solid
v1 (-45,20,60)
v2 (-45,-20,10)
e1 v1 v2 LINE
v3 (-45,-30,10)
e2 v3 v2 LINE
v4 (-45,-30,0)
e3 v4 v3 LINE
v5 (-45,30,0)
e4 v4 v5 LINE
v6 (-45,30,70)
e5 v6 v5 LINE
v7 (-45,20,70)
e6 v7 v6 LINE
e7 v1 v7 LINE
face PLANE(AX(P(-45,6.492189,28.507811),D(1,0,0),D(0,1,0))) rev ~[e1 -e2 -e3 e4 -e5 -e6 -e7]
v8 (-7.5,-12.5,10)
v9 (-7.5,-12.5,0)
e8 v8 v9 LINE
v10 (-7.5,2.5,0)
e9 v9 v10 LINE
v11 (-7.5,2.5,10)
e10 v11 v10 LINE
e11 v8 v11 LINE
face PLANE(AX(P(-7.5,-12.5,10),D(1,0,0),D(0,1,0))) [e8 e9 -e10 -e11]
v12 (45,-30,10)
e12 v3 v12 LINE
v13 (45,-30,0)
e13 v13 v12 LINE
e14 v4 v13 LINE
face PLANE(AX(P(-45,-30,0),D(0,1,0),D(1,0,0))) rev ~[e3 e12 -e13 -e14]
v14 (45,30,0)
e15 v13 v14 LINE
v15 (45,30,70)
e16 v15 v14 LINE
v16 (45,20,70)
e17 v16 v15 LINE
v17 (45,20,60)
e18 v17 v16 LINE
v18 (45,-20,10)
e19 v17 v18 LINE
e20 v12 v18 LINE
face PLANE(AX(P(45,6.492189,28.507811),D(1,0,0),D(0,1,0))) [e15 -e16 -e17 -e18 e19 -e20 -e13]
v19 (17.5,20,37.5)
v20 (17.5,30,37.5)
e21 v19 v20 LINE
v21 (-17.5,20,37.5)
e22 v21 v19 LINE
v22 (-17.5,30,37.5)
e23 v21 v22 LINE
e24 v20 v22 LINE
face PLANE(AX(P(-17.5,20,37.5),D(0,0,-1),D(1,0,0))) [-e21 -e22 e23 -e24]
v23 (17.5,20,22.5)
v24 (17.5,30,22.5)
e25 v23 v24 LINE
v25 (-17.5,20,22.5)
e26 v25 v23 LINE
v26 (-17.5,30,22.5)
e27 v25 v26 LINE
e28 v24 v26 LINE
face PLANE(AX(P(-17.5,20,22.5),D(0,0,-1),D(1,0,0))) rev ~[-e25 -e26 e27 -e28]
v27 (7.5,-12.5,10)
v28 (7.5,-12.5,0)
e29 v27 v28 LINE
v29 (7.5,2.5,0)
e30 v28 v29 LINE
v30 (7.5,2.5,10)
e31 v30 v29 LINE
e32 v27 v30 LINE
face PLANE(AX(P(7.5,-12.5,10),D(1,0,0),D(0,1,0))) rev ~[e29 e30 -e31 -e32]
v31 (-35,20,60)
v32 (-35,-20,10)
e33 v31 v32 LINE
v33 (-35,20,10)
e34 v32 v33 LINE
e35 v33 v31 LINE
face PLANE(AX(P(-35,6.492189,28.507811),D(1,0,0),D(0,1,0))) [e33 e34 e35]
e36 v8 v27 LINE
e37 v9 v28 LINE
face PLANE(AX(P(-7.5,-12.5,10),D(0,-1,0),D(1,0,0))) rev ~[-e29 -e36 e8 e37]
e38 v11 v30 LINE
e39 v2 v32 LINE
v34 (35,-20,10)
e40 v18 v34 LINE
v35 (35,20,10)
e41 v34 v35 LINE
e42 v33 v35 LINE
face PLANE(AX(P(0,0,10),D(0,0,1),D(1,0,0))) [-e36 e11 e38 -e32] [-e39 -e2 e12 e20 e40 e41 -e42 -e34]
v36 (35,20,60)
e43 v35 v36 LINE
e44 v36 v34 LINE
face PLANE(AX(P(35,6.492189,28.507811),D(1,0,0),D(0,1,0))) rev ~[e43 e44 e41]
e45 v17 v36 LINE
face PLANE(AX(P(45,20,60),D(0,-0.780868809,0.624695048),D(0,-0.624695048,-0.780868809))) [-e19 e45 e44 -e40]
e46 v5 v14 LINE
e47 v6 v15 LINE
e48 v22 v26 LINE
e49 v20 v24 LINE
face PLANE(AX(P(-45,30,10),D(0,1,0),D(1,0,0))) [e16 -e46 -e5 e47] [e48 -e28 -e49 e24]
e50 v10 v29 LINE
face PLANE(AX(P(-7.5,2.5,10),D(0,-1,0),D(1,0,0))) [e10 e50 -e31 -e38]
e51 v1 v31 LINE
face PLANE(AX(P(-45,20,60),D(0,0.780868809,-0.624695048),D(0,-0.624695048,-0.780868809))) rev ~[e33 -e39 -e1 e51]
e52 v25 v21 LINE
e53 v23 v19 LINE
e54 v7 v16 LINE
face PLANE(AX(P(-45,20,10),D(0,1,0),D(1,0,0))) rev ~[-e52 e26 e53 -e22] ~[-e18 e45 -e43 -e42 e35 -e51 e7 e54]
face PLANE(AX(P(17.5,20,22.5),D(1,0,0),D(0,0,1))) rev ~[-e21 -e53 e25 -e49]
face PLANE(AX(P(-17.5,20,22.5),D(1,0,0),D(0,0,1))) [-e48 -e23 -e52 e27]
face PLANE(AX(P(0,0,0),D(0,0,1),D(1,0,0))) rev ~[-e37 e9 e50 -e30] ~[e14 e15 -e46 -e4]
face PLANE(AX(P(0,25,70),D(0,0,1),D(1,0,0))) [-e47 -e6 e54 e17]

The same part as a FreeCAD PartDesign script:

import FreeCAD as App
import Part
import Sketcher
Q = App.Units.Quantity


def add_polygon(sketch, points):
    """Adds a closed chain of lines whose ends are joined by coincident constraints."""
    first, n = sketch.GeometryCount, len(points)
    for a, b in zip(points, points[1:] + points[:1]):
        sketch.addGeometry(Part.LineSegment(App.Vector(*a, 0), App.Vector(*b, 0)), False)
    for i in range(n):
        sketch.addConstraint(Sketcher.Constraint("Coincident", first + i, 2, first + (i + 1) % n, 1))

doc = App.newDocument("Part")
params = doc.addObject("Spreadsheet::Sheet", "Params")
for row, (alias, value) in enumerate([
    ("sketch1_width", "90 mm"),
    ("sketch1_height", "60 mm"),
    ("pad1_length", "10 mm"),
    ("sketch2_width", "90 mm"),
    ("sketch2_height", "10 mm"),
    ("pad2_length", "60 mm"),
    ("sketch3_width", "40 mm"),
    ("sketch3_height", "50 mm"),
    ("pad3_length", "10 mm"),
    ("sketch4_width", "40 mm"),
    ("sketch4_height", "50 mm"),
    ("pad4_length", "10 mm"),
    ("sketch5_width", "15 mm"),
    ("sketch6_width", "35 mm"),
    ("sketch6_height", "15 mm"),
], start=1):
    params.set(f"A{row}", alias)
    params.set(f"B{row}", "=" + value)
    params.setAlias(f"B{row}", alias)

body = doc.addObject("PartDesign::Body", "Body")

# Sketch on XY plane
sketch1 = body.newObject("Sketcher::SketchObject", "Sketch")
sketch1.AttachmentSupport = (doc.getObject("XY_Plane"), [""])
sketch1.MapMode = "FlatFace"
add_polygon(sketch1, [(-45, 30), (-45, -30), (45, -30), (45, 30)])  # lines 0-3
sketch1.addConstraint([
    Sketcher.Constraint("Vertical", 0),
    Sketcher.Constraint("Horizontal", 1),
    Sketcher.Constraint("Vertical", 2),
    Sketcher.Constraint("Horizontal", 3),
    Sketcher.Constraint("Symmetric", 0, 2, 2, 2, -1, 1),
    Sketcher.Constraint("DistanceX", 1, 1, 1, 2, Q("90 mm")),
    Sketcher.Constraint("DistanceY", 0, 2, 0, 1, Q("60 mm")),
])
sketch1.setExpression("Constraints[9]", "Params.sketch1_width")
sketch1.setExpression("Constraints[10]", "Params.sketch1_height")
pad1 = body.newObject("PartDesign::Pad", "Pad")
pad1.Profile = sketch1
pad1.setExpression("Length", "Params.pad1_length")

# Sketch on XY plane
sketch2 = body.newObject("Sketcher::SketchObject", "Sketch001")
sketch2.AttachmentSupport = (doc.getObject("XY_Plane"), [""])
sketch2.MapMode = "FlatFace"
sketch2.AttachmentOffset = App.Placement(App.Vector(0, 0, 10), App.Rotation())
add_polygon(sketch2, [(-45, 30), (-45, 20), (45, 20), (45, 30)])  # lines 0-3
sketch2.addConstraint([
    Sketcher.Constraint("Vertical", 0),
    Sketcher.Constraint("Horizontal", 1),
    Sketcher.Constraint("Vertical", 2),
    Sketcher.Constraint("Horizontal", 3),
    Sketcher.Constraint("DistanceX", 1, 1, 1, 2, Q("90 mm")),
    Sketcher.Constraint("DistanceY", 0, 2, 0, 1, Q("10 mm")),
    Sketcher.Constraint("DistanceX", 0, 2, -1, 1, Q("45 mm")),
    Sketcher.Constraint("DistanceY", -1, 1, 0, 2, Q("20 mm")),
])
sketch2.setExpression("Constraints[8]", "Params.sketch2_width")
sketch2.setExpression("Constraints[9]", "Params.sketch2_height")
pad2 = body.newObject("PartDesign::Pad", "Pad001")
pad2.Profile = sketch2
pad2.setExpression("Length", "Params.pad2_length")

# Sketch on YZ plane
sketch3 = body.newObject("Sketcher::SketchObject", "Sketch002")
sketch3.AttachmentSupport = (doc.getObject("YZ_Plane"), [""])
sketch3.MapMode = "FlatFace"
sketch3.AttachmentOffset = App.Placement(App.Vector(0, 0, 45), App.Rotation())
add_polygon(sketch3, [(20, 60), (-20, 10), (20, 10)])  # lines 0-2
sketch3.addConstraint([
    Sketcher.Constraint("Horizontal", 1),
    Sketcher.Constraint("Vertical", 2),
    Sketcher.Constraint("DistanceX", 1, 1, 1, 2, Q("40 mm")),
    Sketcher.Constraint("DistanceY", 2, 1, 2, 2, Q("50 mm")),
    Sketcher.Constraint("DistanceX", 0, 2, -1, 1, Q("20 mm")),
    Sketcher.Constraint("DistanceY", -1, 1, 0, 2, Q("10 mm")),
])
sketch3.setExpression("Constraints[5]", "Params.sketch3_width")
sketch3.setExpression("Constraints[6]", "Params.sketch3_height")
pad3 = body.newObject("PartDesign::Pad", "Pad002")
pad3.Profile = sketch3
pad3.setExpression("Length", "Params.pad3_length")
pad3.Reversed = True

# Sketch on YZ plane
sketch4 = body.newObject("Sketcher::SketchObject", "Sketch003")
sketch4.AttachmentSupport = (doc.getObject("YZ_Plane"), [""])
sketch4.MapMode = "FlatFace"
sketch4.AttachmentOffset = App.Placement(App.Vector(0, 0, -45), App.Rotation())
add_polygon(sketch4, [(-20, 10), (20, 60), (20, 10)])  # lines 0-2
sketch4.addConstraint([
    Sketcher.Constraint("Vertical", 1),
    Sketcher.Constraint("Horizontal", 2),
    Sketcher.Constraint("DistanceX", 2, 2, 2, 1, Q("40 mm")),
    Sketcher.Constraint("DistanceY", 1, 2, 1, 1, Q("50 mm")),
    Sketcher.Constraint("DistanceX", -1, 1, 0, 2, Q("20 mm")),
    Sketcher.Constraint("DistanceY", -1, 1, 0, 2, Q("60 mm")),
])
sketch4.setExpression("Constraints[5]", "Params.sketch4_width")
sketch4.setExpression("Constraints[6]", "Params.sketch4_height")
pad4 = body.newObject("PartDesign::Pad", "Pad003")
pad4.Profile = sketch4
pad4.setExpression("Length", "Params.pad4_length")

# Sketch on XY plane
sketch5 = body.newObject("Sketcher::SketchObject", "Sketch004")
sketch5.AttachmentSupport = (doc.getObject("XY_Plane"), [""])
sketch5.MapMode = "FlatFace"
sketch5.AttachmentOffset = App.Placement(App.Vector(0, 0, 10), App.Rotation())
add_polygon(sketch5, [(-7.5, 2.5), (-7.5, -12.5), (7.5, -12.5), (7.5, 2.5)])  # lines 0-3
sketch5.addConstraint([
    Sketcher.Constraint("Vertical", 0),
    Sketcher.Constraint("Horizontal", 1),
    Sketcher.Constraint("Vertical", 2),
    Sketcher.Constraint("Horizontal", 3),
    Sketcher.Constraint("Equal", 3, 0),
    Sketcher.Constraint("DistanceX", 1, 1, 1, 2, Q("15 mm")),
    Sketcher.Constraint("DistanceX", 0, 2, -1, 1, Q("7.5 mm")),
    Sketcher.Constraint("DistanceY", 0, 2, -1, 1, Q("12.5 mm")),
])
sketch5.setExpression("Constraints[9]", "Params.sketch5_width")
pocket1 = body.newObject("PartDesign::Pocket", "Pocket")
pocket1.Profile = sketch5
pocket1.Type = "ThroughAll"

# Sketch on XZ plane
sketch6 = body.newObject("Sketcher::SketchObject", "Sketch005")
sketch6.AttachmentSupport = (doc.getObject("XZ_Plane"), [""])
sketch6.MapMode = "FlatFace"
sketch6.AttachmentOffset = App.Placement(App.Vector(0, 0, -20), App.Rotation())
add_polygon(sketch6, [(-17.5, 37.5), (-17.5, 22.5), (17.5, 22.5), (17.5, 37.5)])  # lines 0-3
sketch6.addConstraint([
    Sketcher.Constraint("Vertical", 0),
    Sketcher.Constraint("Horizontal", 1),
    Sketcher.Constraint("Vertical", 2),
    Sketcher.Constraint("Horizontal", 3),
    Sketcher.Constraint("DistanceX", 1, 1, 1, 2, Q("35 mm")),
    Sketcher.Constraint("DistanceY", 0, 2, 0, 1, Q("15 mm")),
    Sketcher.Constraint("DistanceX", 0, 2, -1, 1, Q("17.5 mm")),
    Sketcher.Constraint("DistanceY", -1, 1, 0, 2, Q("22.5 mm")),
])
sketch6.setExpression("Constraints[8]", "Params.sketch6_width")
sketch6.setExpression("Constraints[9]", "Params.sketch6_height")
pocket2 = body.newObject("PartDesign::Pocket", "Pocket001")
pocket2.Profile = sketch6
pocket2.Type = "ThroughAll"

doc.recompute()
